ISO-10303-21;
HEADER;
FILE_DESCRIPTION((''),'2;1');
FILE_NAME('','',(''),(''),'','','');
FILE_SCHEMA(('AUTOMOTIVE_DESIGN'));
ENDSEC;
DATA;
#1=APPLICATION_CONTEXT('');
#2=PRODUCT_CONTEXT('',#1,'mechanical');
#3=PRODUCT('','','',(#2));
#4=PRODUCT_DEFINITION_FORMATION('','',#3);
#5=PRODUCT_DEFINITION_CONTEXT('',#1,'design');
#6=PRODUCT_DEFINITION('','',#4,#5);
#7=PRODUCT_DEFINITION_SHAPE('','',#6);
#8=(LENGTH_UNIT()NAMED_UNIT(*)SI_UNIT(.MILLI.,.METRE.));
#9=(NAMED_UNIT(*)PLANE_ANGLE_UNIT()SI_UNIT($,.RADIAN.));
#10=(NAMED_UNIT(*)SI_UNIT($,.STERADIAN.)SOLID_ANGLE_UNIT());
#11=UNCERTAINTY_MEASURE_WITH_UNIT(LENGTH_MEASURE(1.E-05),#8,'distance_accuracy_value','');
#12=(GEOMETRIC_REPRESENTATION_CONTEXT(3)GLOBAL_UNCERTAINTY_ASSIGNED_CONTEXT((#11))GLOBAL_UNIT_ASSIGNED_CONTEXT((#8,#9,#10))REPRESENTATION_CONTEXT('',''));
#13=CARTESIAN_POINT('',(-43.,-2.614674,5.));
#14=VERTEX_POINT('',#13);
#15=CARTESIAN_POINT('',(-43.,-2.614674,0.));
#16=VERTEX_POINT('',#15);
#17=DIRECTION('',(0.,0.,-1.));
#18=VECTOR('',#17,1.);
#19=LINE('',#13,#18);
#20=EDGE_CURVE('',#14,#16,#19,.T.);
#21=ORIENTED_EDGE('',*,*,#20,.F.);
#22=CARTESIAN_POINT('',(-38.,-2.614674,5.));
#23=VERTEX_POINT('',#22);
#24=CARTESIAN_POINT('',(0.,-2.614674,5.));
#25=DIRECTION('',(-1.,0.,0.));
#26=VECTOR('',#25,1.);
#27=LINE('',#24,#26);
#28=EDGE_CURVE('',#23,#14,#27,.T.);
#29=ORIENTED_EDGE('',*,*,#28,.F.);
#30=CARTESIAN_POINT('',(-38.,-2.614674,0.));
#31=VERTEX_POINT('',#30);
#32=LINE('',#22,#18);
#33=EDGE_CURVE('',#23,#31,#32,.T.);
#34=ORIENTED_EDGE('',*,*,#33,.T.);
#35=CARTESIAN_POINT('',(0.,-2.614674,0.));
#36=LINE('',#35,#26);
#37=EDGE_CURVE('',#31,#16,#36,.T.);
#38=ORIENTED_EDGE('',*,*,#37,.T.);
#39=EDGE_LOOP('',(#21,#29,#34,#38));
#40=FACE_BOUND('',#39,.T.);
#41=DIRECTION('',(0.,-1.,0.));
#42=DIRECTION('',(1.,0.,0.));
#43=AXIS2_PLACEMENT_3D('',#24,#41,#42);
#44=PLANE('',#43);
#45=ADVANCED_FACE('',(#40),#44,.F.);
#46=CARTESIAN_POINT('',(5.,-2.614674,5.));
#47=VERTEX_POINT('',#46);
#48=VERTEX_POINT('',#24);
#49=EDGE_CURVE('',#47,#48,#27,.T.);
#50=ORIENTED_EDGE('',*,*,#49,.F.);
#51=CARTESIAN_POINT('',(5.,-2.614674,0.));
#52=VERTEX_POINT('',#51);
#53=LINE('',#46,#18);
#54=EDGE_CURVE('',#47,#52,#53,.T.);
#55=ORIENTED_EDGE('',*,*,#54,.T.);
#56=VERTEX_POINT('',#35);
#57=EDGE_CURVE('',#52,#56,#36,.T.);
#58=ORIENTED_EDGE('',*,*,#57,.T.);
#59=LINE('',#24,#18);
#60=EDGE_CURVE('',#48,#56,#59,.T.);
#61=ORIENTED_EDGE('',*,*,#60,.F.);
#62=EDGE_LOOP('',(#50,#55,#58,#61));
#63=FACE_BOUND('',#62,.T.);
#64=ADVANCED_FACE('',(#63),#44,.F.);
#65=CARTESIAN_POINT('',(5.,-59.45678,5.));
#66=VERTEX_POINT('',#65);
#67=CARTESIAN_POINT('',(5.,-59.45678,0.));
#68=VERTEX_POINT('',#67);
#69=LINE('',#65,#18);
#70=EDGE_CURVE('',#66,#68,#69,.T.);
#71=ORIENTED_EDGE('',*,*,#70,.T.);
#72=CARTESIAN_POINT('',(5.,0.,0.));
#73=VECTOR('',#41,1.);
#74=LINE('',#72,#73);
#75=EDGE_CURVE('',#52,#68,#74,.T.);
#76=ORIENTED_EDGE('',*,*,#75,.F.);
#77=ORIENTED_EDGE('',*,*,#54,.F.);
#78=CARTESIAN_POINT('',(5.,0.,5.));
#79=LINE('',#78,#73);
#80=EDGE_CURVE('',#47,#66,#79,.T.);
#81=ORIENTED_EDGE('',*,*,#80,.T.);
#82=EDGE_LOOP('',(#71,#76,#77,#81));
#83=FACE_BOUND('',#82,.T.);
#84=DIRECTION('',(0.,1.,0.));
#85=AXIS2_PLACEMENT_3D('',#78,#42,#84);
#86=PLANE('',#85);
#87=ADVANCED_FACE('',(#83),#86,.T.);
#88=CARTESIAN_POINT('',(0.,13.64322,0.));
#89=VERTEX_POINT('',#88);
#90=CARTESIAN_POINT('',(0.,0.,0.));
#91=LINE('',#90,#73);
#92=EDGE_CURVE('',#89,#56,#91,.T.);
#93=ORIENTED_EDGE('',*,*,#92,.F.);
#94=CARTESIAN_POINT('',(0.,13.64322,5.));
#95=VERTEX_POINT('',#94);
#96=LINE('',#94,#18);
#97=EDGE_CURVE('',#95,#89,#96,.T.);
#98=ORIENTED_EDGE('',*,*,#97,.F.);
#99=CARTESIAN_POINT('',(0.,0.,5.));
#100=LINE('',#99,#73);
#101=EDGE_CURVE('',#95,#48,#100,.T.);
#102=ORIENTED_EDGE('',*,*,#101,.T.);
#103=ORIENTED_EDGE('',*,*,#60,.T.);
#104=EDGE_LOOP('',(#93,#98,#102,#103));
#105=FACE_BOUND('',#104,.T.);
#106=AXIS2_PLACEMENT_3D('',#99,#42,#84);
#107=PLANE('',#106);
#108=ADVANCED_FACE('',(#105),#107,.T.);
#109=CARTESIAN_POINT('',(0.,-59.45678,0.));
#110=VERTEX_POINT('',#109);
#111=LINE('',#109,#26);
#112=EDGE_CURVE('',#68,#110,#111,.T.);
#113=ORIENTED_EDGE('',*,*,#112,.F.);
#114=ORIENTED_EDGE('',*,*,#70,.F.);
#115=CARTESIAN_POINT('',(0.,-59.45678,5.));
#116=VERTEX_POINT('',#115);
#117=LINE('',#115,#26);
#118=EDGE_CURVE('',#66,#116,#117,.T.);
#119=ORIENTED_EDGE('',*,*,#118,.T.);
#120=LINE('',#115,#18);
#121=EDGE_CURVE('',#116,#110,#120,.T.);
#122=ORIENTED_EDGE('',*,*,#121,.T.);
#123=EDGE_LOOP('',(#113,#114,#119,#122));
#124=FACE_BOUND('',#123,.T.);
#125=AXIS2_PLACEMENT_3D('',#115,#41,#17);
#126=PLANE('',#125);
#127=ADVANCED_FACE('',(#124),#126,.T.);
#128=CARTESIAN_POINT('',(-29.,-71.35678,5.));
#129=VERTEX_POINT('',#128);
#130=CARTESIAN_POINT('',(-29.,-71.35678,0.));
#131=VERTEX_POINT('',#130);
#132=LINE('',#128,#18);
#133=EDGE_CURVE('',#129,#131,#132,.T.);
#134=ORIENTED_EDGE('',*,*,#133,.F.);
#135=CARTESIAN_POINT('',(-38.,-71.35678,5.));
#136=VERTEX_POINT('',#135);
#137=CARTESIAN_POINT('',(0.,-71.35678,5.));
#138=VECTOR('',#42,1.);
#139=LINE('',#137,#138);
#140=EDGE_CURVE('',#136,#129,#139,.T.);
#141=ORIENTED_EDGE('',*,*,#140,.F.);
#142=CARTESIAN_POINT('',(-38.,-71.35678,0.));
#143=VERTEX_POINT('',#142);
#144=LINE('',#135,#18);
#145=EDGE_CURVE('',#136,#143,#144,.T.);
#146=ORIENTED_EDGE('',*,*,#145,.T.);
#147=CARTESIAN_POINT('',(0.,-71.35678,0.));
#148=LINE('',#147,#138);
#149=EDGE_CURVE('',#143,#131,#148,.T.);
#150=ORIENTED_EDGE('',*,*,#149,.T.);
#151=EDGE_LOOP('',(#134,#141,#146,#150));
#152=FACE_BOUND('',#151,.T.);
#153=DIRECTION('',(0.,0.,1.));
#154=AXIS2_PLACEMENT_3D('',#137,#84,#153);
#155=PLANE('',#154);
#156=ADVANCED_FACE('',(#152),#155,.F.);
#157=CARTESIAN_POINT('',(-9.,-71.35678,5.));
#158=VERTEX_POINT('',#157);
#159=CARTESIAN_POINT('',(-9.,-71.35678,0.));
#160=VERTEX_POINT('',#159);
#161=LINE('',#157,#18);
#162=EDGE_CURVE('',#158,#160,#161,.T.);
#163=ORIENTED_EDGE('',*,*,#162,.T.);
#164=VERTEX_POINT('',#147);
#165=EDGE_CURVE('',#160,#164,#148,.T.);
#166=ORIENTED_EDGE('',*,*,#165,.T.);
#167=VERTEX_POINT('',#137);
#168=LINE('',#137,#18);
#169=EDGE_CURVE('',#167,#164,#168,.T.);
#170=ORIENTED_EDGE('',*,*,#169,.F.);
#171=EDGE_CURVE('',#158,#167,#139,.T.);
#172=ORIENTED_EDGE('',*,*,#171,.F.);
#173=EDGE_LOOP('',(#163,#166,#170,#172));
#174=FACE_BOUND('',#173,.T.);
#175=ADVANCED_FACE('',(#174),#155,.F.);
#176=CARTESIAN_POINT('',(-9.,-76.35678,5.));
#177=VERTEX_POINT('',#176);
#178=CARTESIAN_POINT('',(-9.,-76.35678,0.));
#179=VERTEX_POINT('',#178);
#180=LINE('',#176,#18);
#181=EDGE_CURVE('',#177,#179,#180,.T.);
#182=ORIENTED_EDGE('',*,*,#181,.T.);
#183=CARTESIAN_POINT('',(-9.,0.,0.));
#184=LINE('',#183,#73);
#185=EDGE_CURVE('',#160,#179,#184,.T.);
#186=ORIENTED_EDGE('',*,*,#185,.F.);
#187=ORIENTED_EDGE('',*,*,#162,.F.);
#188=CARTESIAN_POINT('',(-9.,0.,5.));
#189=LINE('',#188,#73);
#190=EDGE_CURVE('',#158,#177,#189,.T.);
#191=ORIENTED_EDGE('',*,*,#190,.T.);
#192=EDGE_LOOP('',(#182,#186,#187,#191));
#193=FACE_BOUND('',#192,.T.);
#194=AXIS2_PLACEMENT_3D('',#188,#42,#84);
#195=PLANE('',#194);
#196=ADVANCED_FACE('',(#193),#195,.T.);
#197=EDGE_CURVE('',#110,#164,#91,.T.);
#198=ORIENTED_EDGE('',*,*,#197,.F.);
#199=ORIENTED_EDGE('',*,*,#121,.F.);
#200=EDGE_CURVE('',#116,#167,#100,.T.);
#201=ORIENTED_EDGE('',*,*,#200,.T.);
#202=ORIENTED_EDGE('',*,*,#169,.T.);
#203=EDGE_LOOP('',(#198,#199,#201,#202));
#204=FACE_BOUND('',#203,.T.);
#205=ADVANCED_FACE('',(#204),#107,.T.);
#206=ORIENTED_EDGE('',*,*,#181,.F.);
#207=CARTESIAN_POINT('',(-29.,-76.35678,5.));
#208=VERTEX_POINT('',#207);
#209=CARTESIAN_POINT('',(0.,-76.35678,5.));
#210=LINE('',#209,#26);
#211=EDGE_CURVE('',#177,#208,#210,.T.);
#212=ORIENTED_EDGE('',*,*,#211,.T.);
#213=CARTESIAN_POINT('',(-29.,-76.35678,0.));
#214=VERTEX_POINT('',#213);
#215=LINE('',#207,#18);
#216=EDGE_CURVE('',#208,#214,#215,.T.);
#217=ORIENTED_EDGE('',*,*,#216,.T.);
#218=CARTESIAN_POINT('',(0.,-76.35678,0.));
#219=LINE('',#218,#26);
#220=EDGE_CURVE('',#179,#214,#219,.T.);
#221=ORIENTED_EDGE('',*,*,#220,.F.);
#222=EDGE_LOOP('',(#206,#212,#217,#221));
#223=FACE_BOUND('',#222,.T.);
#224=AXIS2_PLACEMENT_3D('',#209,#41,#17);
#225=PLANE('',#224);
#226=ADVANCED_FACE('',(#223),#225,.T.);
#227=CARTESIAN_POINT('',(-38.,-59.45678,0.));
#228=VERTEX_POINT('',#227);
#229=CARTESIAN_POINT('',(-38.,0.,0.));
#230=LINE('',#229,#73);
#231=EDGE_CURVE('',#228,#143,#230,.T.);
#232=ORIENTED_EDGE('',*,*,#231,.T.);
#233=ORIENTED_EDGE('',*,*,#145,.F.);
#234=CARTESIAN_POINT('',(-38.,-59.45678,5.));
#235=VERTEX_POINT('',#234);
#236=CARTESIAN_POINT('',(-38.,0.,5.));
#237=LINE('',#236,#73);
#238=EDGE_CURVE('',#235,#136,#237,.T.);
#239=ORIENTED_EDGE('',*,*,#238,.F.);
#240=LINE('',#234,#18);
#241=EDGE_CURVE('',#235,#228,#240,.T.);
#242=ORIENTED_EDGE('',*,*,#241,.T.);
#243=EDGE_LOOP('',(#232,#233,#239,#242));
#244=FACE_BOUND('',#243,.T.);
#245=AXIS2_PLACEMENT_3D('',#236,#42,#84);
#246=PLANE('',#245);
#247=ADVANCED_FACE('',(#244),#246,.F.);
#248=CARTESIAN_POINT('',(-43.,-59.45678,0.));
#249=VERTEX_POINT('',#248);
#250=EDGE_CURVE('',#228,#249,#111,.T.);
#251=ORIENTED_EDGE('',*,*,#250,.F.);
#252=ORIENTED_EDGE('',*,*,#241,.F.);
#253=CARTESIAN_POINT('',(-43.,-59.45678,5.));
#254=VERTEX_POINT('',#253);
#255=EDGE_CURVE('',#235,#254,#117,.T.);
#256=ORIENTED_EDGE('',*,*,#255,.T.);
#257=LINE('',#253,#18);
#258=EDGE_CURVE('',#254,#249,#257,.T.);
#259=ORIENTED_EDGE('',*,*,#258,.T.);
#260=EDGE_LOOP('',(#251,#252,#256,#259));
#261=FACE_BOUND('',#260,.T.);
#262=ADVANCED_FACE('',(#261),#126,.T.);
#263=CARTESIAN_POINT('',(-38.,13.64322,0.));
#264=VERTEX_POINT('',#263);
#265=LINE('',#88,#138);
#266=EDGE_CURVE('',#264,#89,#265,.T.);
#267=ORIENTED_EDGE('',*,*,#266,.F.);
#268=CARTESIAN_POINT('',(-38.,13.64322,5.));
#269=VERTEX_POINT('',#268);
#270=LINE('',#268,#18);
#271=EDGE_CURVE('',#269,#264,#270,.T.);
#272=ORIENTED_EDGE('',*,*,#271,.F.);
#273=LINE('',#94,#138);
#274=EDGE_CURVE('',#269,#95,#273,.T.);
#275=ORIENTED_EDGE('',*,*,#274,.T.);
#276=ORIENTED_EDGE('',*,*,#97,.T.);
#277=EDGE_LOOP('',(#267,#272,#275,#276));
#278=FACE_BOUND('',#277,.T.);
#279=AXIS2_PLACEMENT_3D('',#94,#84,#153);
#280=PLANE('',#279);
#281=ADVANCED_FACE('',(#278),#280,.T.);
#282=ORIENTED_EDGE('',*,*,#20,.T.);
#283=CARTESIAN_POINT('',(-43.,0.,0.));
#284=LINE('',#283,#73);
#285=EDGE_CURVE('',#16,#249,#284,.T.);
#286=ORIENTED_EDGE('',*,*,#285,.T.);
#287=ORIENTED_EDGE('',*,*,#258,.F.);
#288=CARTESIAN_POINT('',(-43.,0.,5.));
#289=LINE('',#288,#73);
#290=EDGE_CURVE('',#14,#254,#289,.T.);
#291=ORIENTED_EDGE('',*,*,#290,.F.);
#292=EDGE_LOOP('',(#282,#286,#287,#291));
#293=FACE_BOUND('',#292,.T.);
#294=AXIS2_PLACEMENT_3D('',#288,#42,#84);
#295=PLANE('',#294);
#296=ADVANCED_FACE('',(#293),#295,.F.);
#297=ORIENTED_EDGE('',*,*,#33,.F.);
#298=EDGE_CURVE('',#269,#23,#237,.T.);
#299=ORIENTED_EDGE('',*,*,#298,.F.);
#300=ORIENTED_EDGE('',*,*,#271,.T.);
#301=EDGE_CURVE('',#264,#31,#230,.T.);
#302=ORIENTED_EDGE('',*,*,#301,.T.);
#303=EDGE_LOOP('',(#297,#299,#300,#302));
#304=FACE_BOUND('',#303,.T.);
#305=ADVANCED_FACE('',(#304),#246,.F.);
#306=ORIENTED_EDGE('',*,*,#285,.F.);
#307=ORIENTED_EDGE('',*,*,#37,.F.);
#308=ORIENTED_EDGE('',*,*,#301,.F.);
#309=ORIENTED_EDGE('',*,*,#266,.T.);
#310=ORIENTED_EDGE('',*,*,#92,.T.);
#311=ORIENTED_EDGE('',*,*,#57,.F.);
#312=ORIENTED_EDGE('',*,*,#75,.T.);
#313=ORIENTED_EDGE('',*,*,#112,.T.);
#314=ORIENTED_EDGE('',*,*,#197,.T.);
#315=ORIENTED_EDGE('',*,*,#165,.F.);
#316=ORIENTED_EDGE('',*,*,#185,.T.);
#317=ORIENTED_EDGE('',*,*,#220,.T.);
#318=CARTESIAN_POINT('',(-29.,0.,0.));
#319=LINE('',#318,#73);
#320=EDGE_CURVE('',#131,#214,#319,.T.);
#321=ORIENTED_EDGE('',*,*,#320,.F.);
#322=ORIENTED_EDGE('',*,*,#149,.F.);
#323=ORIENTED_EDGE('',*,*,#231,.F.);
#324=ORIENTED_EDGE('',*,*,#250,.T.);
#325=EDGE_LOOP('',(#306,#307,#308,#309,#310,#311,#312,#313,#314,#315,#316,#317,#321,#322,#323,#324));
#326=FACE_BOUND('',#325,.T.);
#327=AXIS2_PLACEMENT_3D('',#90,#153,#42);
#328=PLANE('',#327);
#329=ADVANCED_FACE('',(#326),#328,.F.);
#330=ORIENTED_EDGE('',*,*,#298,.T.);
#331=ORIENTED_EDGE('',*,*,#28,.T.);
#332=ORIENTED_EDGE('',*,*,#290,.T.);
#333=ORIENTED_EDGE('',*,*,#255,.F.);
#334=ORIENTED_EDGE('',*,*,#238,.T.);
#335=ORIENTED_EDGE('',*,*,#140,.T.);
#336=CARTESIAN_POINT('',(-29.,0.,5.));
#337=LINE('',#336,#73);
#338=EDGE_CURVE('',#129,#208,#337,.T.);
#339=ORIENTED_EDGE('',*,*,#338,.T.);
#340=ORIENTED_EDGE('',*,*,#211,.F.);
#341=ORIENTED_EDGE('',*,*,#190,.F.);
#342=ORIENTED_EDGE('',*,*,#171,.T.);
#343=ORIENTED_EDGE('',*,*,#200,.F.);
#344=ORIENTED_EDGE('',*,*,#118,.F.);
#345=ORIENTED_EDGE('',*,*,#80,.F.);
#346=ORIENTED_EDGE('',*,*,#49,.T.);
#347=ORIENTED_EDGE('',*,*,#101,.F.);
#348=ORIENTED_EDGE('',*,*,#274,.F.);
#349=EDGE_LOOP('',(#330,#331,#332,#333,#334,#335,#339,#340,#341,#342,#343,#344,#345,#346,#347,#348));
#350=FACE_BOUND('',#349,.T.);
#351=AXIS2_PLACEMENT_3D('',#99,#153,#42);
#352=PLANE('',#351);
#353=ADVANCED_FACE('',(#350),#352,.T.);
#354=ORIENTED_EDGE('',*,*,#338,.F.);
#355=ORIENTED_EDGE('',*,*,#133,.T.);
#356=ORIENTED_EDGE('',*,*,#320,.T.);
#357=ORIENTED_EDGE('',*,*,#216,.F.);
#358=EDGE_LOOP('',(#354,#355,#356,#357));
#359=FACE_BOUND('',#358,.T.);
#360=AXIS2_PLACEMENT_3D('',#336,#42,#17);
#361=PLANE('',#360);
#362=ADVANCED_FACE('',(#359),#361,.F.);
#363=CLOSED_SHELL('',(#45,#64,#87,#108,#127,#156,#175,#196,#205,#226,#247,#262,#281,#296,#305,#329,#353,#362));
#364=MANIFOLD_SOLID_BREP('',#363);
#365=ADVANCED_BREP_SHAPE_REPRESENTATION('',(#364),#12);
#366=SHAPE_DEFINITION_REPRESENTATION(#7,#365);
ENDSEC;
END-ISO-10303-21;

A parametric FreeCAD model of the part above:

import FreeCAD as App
import Part
import Sketcher
Q = App.Units.Quantity

doc = App.newDocument("Part")
body = doc.addObject("PartDesign::Body", "Body")

sketch1 = body.newObject("Sketcher::SketchObject", "Sketch")
sketch1.AttachmentSupport = (doc.getObject("XY_Plane"), [""])
sketch1.MapMode = "FlatFace"
sketch1.addGeometry(Part.LineSegment(App.Vector(-38, -59, 0), App.Vector(-38, -71, 0)), False)
sketch1.addGeometry(Part.LineSegment(App.Vector(-38, -71, 0), App.Vector(-29, -71, 0)), False)
sketch1.addGeometry(Part.LineSegment(App.Vector(-29, -71, 0), App.Vector(-29, -76, 0)), False)
sketch1.addGeometry(Part.LineSegment(App.Vector(-29, -76, 0), App.Vector(-9, -76, 0)), False)
sketch1.addGeometry(Part.LineSegment(App.Vector(-9, -76, 0), App.Vector(-9, -71, 0)), False)
sketch1.addGeometry(Part.LineSegment(App.Vector(-9, -71, 0), App.Vector(0, -71, 0)), False)
sketch1.addGeometry(Part.LineSegment(App.Vector(0, -71, 0), App.Vector(0, -59, 0)), False)
sketch1.addGeometry(Part.LineSegment(App.Vector(0, -59, 0), App.Vector(5, -59, 0)), False)
sketch1.addGeometry(Part.LineSegment(App.Vector(5, -59, 0), App.Vector(5, -3, 0)), False)
sketch1.addGeometry(Part.LineSegment(App.Vector(5, -3, 0), App.Vector(0, -3, 0)), False)
sketch1.addGeometry(Part.LineSegment(App.Vector(0, -3, 0), App.Vector(0, 14, 0)), False)
sketch1.addGeometry(Part.LineSegment(App.Vector(0, 14, 0), App.Vector(-38, 14, 0)), False)
sketch1.addGeometry(Part.LineSegment(App.Vector(-38, 14, 0), App.Vector(-38, -3, 0)), False)
sketch1.addGeometry(Part.LineSegment(App.Vector(-38, -3, 0), App.Vector(-43, -3, 0)), False)
sketch1.addGeometry(Part.LineSegment(App.Vector(-43, -3, 0), App.Vector(-43, -59, 0)), False)
sketch1.addGeometry(Part.LineSegment(App.Vector(-43, -59, 0), App.Vector(-38, -59, 0)), False)
sketch1.addConstraint(Sketcher.Constraint("Coincident", 0, 2, 1, 1))
sketch1.addConstraint(Sketcher.Constraint("Coincident", 1, 2, 2, 1))
sketch1.addConstraint(Sketcher.Constraint("Coincident", 2, 2, 3, 1))
sketch1.addConstraint(Sketcher.Constraint("Coincident", 3, 2, 4, 1))
sketch1.addConstraint(Sketcher.Constraint("Coincident", 4, 2, 5, 1))
sketch1.addConstraint(Sketcher.Constraint("Coincident", 5, 2, 6, 1))
sketch1.addConstraint(Sketcher.Constraint("Coincident", 6, 2, 7, 1))
sketch1.addConstraint(Sketcher.Constraint("Coincident", 7, 2, 8, 1))
sketch1.addConstraint(Sketcher.Constraint("Coincident", 8, 2, 9, 1))
sketch1.addConstraint(Sketcher.Constraint("Coincident", 9, 2, 10, 1))
sketch1.addConstraint(Sketcher.Constraint("Coincident", 10, 2, 11, 1))
sketch1.addConstraint(Sketcher.Constraint("Coincident", 11, 2, 12, 1))
sketch1.addConstraint(Sketcher.Constraint("Coincident", 12, 2, 13, 1))
sketch1.addConstraint(Sketcher.Constraint("Coincident", 13, 2, 14, 1))
sketch1.addConstraint(Sketcher.Constraint("Coincident", 14, 2, 15, 1))
sketch1.addConstraint(Sketcher.Constraint("Coincident", 15, 2, 0, 1))
sketch1.addConstraint(Sketcher.Constraint("Vertical", 0))
sketch1.addConstraint(Sketcher.Constraint("Horizontal", 1))
sketch1.addConstraint(Sketcher.Constraint("Vertical", 2))
sketch1.addConstraint(Sketcher.Constraint("Horizontal", 3))
sketch1.addConstraint(Sketcher.Constraint("Vertical", 4))
sketch1.addConstraint(Sketcher.Constraint("Horizontal", 5))
sketch1.addConstraint(Sketcher.Constraint("Vertical", 6))
sketch1.addConstraint(Sketcher.Constraint("Horizontal", 7))
sketch1.addConstraint(Sketcher.Constraint("Vertical", 8))
sketch1.addConstraint(Sketcher.Constraint("Horizontal", 9))
sketch1.addConstraint(Sketcher.Constraint("Vertical", 10))
sketch1.addConstraint(Sketcher.Constraint("Horizontal", 11))
sketch1.addConstraint(Sketcher.Constraint("Vertical", 12))
sketch1.addConstraint(Sketcher.Constraint("Horizontal", 13))
sketch1.addConstraint(Sketcher.Constraint("Vertical", 14))
sketch1.addConstraint(Sketcher.Constraint("Horizontal", 15))
sketch1.addConstraint(Sketcher.Constraint("PointOnObject", 5, 2, -2))
sketch1.addConstraint(Sketcher.Constraint("PointOnObject", 9, 2, -2))
sketch1.addConstraint(Sketcher.Constraint("Horizontal", 1, 2, 4, 2))
sketch1.addConstraint(Sketcher.Constraint("Horizontal", 9, 2, 12, 2))
sketch1.addConstraint(Sketcher.Constraint("Horizontal", 7, 2, 14, 2))
sketch1.addConstraint(Sketcher.Constraint("Vertical", 0, 2, 11, 2))
sketch1.addConstraint(Sketcher.Constraint("Equal", 1, 5))
sketch1.addConstraint(Sketcher.Constraint("Equal", 9, 13))
sketch1.addConstraint(Sketcher.Constraint("Equal", 15, 2))
sketch1.addConstraint(Sketcher.Constraint("DistanceX", 1, 1, 1, 2, Q("9 mm")))
sketch1.addConstraint(Sketcher.Constraint("DistanceX", 3, 1, 3, 2, Q("20 mm")))
sketch1.addConstraint(Sketcher.Constraint("DistanceX", 7, 1, 7, 2, Q("5 mm")))
sketch1.addConstraint(Sketcher.Constraint("DistanceY", 0, 2, 0, 1, Q("11.9 mm")))
sketch1.addConstraint(Sketcher.Constraint("DistanceY", 5, 2, 10, 2, Q("85 mm")))
sketch1.addConstraint(Sketcher.Constraint("DistanceY", 8, 1, 8, 2, Q("56.842105 mm")))
sketch1.addConstraint(Sketcher.Constraint("DistanceY", 0, 2, -1, 1, Q("71.35678 mm")))
pad1 = body.newObject("PartDesign::Pad", "Pad")
pad1.Profile = sketch1
pad1.Length = 5

doc.recompute()
